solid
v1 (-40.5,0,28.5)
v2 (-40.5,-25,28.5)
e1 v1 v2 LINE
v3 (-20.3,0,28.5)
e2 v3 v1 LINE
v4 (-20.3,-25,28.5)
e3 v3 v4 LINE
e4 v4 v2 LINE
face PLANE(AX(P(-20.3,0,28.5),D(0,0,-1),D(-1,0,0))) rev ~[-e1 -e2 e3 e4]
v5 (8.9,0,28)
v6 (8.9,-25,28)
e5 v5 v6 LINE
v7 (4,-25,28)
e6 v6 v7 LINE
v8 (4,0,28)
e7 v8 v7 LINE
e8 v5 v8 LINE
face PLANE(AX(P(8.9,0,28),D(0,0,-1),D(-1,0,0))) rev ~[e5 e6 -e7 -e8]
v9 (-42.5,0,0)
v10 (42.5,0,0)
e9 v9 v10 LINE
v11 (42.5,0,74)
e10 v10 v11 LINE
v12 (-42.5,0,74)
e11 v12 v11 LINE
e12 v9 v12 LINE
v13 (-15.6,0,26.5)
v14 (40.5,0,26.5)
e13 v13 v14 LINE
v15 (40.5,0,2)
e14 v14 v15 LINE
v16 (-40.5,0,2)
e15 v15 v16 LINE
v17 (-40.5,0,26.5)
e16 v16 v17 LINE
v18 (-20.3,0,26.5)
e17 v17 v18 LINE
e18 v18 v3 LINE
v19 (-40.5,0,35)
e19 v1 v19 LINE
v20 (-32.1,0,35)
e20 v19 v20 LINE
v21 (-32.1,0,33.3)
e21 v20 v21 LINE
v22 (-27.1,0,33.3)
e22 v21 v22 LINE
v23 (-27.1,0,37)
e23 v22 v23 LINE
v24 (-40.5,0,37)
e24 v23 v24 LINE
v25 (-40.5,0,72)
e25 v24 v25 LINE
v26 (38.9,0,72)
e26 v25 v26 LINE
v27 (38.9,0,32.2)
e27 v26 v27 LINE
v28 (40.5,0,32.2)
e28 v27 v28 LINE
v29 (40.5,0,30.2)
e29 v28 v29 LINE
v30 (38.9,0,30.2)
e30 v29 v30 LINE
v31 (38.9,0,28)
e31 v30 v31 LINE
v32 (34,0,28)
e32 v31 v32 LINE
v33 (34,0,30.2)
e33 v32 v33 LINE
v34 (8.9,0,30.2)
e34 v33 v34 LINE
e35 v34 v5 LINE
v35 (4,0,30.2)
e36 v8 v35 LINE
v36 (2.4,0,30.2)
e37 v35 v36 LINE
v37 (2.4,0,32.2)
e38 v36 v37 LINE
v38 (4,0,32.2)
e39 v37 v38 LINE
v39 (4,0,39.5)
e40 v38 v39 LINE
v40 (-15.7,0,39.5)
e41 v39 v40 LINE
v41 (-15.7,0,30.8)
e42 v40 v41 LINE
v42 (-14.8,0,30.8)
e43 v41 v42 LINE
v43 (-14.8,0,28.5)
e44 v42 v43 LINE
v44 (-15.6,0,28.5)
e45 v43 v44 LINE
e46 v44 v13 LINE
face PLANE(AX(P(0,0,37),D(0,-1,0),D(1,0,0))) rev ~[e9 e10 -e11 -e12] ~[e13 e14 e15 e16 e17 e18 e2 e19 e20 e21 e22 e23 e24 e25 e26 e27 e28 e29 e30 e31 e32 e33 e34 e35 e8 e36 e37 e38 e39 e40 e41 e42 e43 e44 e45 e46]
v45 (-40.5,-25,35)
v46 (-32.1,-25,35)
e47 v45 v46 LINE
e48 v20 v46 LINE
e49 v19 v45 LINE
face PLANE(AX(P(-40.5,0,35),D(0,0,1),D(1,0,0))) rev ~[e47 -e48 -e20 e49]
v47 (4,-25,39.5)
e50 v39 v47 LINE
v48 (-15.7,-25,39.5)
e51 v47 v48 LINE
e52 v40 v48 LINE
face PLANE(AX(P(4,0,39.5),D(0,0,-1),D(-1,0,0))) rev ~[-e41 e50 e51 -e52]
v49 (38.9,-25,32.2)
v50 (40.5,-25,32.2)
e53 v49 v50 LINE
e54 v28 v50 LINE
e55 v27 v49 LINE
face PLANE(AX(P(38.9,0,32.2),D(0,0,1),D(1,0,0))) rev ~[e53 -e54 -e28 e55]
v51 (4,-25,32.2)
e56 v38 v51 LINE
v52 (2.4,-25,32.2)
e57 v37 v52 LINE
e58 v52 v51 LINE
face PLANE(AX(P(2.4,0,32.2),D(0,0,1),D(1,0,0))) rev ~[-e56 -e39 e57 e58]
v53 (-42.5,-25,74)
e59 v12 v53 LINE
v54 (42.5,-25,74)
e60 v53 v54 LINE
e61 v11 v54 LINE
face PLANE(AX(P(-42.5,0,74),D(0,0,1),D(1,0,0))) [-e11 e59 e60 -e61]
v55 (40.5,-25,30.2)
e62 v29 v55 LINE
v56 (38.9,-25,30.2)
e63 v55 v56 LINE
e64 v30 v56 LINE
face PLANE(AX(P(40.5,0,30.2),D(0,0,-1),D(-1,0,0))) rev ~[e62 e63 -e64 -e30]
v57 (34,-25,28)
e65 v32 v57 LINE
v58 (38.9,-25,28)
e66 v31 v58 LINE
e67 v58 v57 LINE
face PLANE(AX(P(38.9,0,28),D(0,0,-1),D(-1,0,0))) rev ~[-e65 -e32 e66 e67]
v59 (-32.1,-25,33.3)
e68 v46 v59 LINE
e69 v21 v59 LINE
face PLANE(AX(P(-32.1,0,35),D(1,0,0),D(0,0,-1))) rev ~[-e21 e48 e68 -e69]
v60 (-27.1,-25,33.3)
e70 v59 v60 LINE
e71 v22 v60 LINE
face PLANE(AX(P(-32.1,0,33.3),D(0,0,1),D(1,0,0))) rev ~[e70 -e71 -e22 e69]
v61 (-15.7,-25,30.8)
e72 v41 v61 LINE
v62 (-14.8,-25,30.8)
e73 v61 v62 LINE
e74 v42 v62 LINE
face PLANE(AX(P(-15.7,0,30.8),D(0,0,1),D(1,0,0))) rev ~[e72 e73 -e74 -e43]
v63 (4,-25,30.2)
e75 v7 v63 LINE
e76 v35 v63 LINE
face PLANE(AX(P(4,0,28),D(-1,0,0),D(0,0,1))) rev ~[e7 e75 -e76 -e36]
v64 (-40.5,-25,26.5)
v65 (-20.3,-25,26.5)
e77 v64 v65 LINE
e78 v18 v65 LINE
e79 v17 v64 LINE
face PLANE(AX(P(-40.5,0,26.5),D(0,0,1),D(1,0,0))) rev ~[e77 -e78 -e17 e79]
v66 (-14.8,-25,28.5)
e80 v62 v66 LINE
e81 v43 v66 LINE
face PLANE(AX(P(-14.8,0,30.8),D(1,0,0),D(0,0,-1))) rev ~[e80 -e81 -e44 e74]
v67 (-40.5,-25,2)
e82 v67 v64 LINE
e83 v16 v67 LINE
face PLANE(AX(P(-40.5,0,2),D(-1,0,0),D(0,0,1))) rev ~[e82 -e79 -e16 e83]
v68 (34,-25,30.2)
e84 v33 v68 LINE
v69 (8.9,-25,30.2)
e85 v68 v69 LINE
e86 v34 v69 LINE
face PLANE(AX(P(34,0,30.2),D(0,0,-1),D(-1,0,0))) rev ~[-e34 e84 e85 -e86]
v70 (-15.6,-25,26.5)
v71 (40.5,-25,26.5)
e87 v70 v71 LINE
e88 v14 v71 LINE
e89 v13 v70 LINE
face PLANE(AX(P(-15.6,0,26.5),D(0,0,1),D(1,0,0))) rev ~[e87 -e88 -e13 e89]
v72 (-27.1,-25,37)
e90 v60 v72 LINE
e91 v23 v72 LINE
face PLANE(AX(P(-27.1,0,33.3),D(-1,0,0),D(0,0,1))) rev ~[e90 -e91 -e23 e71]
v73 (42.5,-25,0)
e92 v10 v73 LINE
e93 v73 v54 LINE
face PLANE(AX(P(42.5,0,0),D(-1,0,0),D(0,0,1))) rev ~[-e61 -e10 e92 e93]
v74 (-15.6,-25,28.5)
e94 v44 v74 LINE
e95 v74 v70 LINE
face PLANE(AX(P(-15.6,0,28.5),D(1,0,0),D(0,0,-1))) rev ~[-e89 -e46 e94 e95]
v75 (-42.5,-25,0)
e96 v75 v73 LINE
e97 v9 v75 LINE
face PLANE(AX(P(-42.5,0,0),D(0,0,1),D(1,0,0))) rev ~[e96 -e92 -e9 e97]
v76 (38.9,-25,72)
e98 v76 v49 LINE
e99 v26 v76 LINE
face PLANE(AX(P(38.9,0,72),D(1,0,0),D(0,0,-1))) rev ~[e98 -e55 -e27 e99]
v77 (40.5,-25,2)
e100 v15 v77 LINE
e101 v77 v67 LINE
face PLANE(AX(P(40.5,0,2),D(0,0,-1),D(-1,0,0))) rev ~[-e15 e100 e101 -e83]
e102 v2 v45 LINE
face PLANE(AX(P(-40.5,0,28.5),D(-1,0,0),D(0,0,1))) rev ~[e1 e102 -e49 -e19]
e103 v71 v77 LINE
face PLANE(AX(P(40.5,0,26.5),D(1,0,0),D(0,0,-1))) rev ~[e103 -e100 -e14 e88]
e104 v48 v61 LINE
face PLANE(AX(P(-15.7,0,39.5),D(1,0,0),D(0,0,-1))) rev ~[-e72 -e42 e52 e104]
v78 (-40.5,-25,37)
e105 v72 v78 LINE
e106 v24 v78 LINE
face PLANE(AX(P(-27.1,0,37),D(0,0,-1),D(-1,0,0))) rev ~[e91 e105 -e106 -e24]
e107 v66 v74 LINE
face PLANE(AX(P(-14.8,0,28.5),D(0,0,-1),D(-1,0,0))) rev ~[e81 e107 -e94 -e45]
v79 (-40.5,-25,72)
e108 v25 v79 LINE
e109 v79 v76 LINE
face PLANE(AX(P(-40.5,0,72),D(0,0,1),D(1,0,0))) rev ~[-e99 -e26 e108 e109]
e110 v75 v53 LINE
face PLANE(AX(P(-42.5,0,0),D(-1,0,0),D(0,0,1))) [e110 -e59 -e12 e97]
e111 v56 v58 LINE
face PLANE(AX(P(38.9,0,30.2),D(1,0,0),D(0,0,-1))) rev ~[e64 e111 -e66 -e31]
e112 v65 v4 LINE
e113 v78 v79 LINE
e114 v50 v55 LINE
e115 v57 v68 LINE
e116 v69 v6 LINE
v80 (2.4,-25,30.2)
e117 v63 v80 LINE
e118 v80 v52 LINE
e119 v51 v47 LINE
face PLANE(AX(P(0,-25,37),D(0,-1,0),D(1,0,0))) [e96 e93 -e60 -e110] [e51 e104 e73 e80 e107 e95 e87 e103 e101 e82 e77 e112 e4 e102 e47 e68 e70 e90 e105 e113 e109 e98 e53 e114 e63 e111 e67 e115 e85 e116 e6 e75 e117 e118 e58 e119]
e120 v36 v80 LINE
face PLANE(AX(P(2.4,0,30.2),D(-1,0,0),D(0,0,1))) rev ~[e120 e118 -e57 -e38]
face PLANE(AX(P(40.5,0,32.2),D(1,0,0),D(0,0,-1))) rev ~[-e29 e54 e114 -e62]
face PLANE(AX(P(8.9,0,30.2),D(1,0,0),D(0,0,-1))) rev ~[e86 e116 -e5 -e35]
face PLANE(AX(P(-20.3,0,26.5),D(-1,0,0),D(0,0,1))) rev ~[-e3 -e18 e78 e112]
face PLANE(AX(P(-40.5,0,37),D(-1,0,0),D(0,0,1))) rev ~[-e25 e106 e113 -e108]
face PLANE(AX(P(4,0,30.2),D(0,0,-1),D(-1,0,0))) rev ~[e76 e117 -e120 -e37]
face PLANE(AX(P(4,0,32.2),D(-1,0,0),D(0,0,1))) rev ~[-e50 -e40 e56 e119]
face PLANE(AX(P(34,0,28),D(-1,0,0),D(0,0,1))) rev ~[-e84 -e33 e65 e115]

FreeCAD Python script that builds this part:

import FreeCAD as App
import Part
import Sketcher

V = App.Vector


def add_polygon(sketch, points):
    """Adds a closed chain of lines whose ends are joined by coincident constraints."""
    first, n = sketch.GeometryCount, len(points)
    for a, b in zip(points, points[1:] + points[:1]):
        sketch.addGeometry(Part.LineSegment(App.Vector(*a, 0), App.Vector(*b, 0)), False)
    for i in range(n):
        sketch.addConstraint(Sketcher.Constraint("Coincident", first + i, 2, first + (i + 1) % n, 1))

doc = App.newDocument("Part")
params = doc.addObject("Spreadsheet::Sheet", "Params")
for row, (alias, value) in enumerate([
    ("sketch1_width", "85 mm"),
    ("sketch1_width2", "81 mm"),
    ("sketch1_width3", "5 mm"),
    ("sketch1_height", "74 mm"),
    ("sketch1_height2", "2 mm"),
    ("pad1_length", "25 mm"),
], start=1):
    params.set(f"A{row}", alias)
    params.set(f"B{row}", "=" + value)
    params.setAlias(f"B{row}", alias)

body = doc.addObject("PartDesign::Body", "Body")

sketch1 = body.newObject("Sketcher::SketchObject", "Sketch")
sketch1.AttachmentSupport = (doc.getObject("XZ_Plane"), [""])
sketch1.MapMode = "FlatFace"
add_polygon(sketch1, [(-42.5, 74), (-42.5, 0), (42.5, 0), (42.5, 74)])
add_polygon(sketch1, [(40.5, 26.5), (40.5, 2), (-40.5, 2), (-40.5, 26.5), (-20.3, 26.5), (-20.3, 28.5), (-40.5, 28.5), (-40.5, 35), (-32.1, 35), (-32.1, 33.3), (-27.1, 33.3), (-27.1, 37), (-40.5, 37), (-40.5, 72), (38.9, 72), (38.9, 32.2), (40.5, 32.2), (40.5, 30.2), (38.9, 30.2), (38.9, 28), (34, 28), (34, 30.2), (8.9, 30.2), (8.9, 28), (4, 28), (4, 30.2), (2.4, 30.2), (2.4, 32.2), (4, 32.2), (4, 39.5), (-15.7, 39.5), (-15.7, 30.8), (-14.8, 30.8), (-14.8, 28.5), (-15.6, 28.5), (-15.6, 26.5)])
sketch1.addConstraint([
    Sketcher.Constraint("Vertical", 0),
    Sketcher.Constraint("Horizontal", 1),
    Sketcher.Constraint("Vertical", 2),
    Sketcher.Constraint("Horizontal", 3),
    Sketcher.Constraint("Vertical", 4),
    Sketcher.Constraint("Horizontal", 5),
    Sketcher.Constraint("Vertical", 6),
    Sketcher.Constraint("Horizontal", 7),
    Sketcher.Constraint("Vertical", 8),
    Sketcher.Constraint("Horizontal", 9),
    Sketcher.Constraint("Vertical", 10),
    Sketcher.Constraint("Horizontal", 11),
    Sketcher.Constraint("Vertical", 12),
    Sketcher.Constraint("Horizontal", 13),
    Sketcher.Constraint("Vertical", 14),
    Sketcher.Constraint("Horizontal", 15),
    Sketcher.Constraint("Vertical", 16),
    Sketcher.Constraint("Horizontal", 17),
    Sketcher.Constraint("Vertical", 18),
    Sketcher.Constraint("Horizontal", 19),
    Sketcher.Constraint("Vertical", 20),
    Sketcher.Constraint("Horizontal", 21),
    Sketcher.Constraint("Vertical", 22),
    Sketcher.Constraint("Horizontal", 23),
    Sketcher.Constraint("Vertical", 24),
    Sketcher.Constraint("Horizontal", 25),
    Sketcher.Constraint("Vertical", 26),
    Sketcher.Constraint("Horizontal", 27),
    Sketcher.Constraint("Vertical", 28),
    Sketcher.Constraint("Horizontal", 29),
    Sketcher.Constraint("Vertical", 30),
    Sketcher.Constraint("Horizontal", 31),
    Sketcher.Constraint("Vertical", 32),
    Sketcher.Constraint("Horizontal", 33),
    Sketcher.Constraint("Vertical", 34),
    Sketcher.Constraint("Horizontal", 35),
    Sketcher.Constraint("Vertical", 36),
    Sketcher.Constraint("Horizontal", 37),
    Sketcher.Constraint("Vertical", 38),
    Sketcher.Constraint("Horizontal", 39),
    Sketcher.Constraint("Symmetric", 0, 2, 1, 2, -1, 1),
    Sketcher.Constraint("Symmetric", 6, 2, 39, 2, -2),
    Sketcher.Constraint("Horizontal", 21, 2, 24, 2),
    Sketcher.Constraint("Horizontal", 23, 2, 26, 2),
    Sketcher.Constraint("Horizontal", 25, 2, 28, 2),
    Sketcher.Constraint("Horizontal", 19, 2, 30, 2),
    Sketcher.Constraint("Horizontal", 9, 2, 36, 2),
    Sketcher.Constraint("Vertical", 6, 2, 9, 2),
    Sketcher.Constraint("Vertical", 10, 2, 15, 2),
    Sketcher.Constraint("Vertical", 4, 2, 19, 2),
    Sketcher.Constraint("Vertical", 18, 2, 21, 2),
    Sketcher.Constraint("Vertical", 28, 2, 31, 2),
    Sketcher.Constraint("Equal", 23, 27),
    Sketcher.Constraint("Equal", 21, 29),
    Sketcher.Constraint("Equal", 8, 20),
    Sketcher.Constraint("DistanceX", 1, 1, 1, 2, 85.0),
    Sketcher.Constraint("DistanceX", 5, 2, 5, 1, 81.0),
    Sketcher.Constraint("DistanceX", 13, 1, 13, 2, 5.0),
    Sketcher.Constraint("DistanceY", 0, 2, 0, 1, 74.0),
    Sketcher.Constraint("DistanceY", 8, 1, 8, 2, 2.0),
    Sketcher.Constraint("DistanceY", 16, 1, 16, 2, 35.0),
    Sketcher.Constraint("DistanceX", 7, 1, 7, 2, 20.2),
    Sketcher.Constraint("DistanceX", 11, 1, 11, 2, 8.4),
    Sketcher.Constraint("DistanceX", 17, 1, 17, 2, 79.4),
    Sketcher.Constraint("DistanceX", 23, 2, 23, 1, 4.9),
    Sketcher.Constraint("DistanceX", 25, 2, 25, 1, 25.1),
    Sketcher.Constraint("DistanceX", 33, 2, 33, 1, 19.7),
    Sketcher.Constraint("DistanceX", 35, 1, 35, 2, 0.9),
    Sketcher.Constraint("DistanceX", 37, 2, 37, 1, 0.8),
    Sketcher.Constraint("DistanceY", 4, 2, 4, 1, 24.5),
    Sketcher.Constraint("DistanceY", 10, 1, 10, 2, 6.5),
    Sketcher.Constraint("DistanceY", 12, 2, 12, 1, 1.7),
    Sketcher.Constraint("DistanceY", 14, 1, 14, 2, 3.7),
    Sketcher.Constraint("DistanceY", 18, 2, 18, 1, 39.8),
    Sketcher.Constraint("DistanceY", 22, 2, 22, 1, 2.2),
    Sketcher.Constraint("DistanceY", 32, 1, 32, 2, 7.3),
    Sketcher.Constraint("DistanceY", 34, 2, 34, 1, 8.7),
    Sketcher.Constraint("DistanceY", -1, 1, 4, 2, 2.0),
])
sketch1.setExpression("Constraints[95]", "Params.sketch1_width")
sketch1.setExpression("Constraints[96]", "Params.sketch1_width2")
sketch1.setExpression("Constraints[97]", "Params.sketch1_width3")
sketch1.setExpression("Constraints[98]", "Params.sketch1_height")
sketch1.setExpression("Constraints[99]", "Params.sketch1_height2")
pad1 = body.newObject("PartDesign::Pad", "Pad")
pad1.Profile = sketch1
pad1.setExpression("Length", "Params.pad1_length")

doc.recompute()
